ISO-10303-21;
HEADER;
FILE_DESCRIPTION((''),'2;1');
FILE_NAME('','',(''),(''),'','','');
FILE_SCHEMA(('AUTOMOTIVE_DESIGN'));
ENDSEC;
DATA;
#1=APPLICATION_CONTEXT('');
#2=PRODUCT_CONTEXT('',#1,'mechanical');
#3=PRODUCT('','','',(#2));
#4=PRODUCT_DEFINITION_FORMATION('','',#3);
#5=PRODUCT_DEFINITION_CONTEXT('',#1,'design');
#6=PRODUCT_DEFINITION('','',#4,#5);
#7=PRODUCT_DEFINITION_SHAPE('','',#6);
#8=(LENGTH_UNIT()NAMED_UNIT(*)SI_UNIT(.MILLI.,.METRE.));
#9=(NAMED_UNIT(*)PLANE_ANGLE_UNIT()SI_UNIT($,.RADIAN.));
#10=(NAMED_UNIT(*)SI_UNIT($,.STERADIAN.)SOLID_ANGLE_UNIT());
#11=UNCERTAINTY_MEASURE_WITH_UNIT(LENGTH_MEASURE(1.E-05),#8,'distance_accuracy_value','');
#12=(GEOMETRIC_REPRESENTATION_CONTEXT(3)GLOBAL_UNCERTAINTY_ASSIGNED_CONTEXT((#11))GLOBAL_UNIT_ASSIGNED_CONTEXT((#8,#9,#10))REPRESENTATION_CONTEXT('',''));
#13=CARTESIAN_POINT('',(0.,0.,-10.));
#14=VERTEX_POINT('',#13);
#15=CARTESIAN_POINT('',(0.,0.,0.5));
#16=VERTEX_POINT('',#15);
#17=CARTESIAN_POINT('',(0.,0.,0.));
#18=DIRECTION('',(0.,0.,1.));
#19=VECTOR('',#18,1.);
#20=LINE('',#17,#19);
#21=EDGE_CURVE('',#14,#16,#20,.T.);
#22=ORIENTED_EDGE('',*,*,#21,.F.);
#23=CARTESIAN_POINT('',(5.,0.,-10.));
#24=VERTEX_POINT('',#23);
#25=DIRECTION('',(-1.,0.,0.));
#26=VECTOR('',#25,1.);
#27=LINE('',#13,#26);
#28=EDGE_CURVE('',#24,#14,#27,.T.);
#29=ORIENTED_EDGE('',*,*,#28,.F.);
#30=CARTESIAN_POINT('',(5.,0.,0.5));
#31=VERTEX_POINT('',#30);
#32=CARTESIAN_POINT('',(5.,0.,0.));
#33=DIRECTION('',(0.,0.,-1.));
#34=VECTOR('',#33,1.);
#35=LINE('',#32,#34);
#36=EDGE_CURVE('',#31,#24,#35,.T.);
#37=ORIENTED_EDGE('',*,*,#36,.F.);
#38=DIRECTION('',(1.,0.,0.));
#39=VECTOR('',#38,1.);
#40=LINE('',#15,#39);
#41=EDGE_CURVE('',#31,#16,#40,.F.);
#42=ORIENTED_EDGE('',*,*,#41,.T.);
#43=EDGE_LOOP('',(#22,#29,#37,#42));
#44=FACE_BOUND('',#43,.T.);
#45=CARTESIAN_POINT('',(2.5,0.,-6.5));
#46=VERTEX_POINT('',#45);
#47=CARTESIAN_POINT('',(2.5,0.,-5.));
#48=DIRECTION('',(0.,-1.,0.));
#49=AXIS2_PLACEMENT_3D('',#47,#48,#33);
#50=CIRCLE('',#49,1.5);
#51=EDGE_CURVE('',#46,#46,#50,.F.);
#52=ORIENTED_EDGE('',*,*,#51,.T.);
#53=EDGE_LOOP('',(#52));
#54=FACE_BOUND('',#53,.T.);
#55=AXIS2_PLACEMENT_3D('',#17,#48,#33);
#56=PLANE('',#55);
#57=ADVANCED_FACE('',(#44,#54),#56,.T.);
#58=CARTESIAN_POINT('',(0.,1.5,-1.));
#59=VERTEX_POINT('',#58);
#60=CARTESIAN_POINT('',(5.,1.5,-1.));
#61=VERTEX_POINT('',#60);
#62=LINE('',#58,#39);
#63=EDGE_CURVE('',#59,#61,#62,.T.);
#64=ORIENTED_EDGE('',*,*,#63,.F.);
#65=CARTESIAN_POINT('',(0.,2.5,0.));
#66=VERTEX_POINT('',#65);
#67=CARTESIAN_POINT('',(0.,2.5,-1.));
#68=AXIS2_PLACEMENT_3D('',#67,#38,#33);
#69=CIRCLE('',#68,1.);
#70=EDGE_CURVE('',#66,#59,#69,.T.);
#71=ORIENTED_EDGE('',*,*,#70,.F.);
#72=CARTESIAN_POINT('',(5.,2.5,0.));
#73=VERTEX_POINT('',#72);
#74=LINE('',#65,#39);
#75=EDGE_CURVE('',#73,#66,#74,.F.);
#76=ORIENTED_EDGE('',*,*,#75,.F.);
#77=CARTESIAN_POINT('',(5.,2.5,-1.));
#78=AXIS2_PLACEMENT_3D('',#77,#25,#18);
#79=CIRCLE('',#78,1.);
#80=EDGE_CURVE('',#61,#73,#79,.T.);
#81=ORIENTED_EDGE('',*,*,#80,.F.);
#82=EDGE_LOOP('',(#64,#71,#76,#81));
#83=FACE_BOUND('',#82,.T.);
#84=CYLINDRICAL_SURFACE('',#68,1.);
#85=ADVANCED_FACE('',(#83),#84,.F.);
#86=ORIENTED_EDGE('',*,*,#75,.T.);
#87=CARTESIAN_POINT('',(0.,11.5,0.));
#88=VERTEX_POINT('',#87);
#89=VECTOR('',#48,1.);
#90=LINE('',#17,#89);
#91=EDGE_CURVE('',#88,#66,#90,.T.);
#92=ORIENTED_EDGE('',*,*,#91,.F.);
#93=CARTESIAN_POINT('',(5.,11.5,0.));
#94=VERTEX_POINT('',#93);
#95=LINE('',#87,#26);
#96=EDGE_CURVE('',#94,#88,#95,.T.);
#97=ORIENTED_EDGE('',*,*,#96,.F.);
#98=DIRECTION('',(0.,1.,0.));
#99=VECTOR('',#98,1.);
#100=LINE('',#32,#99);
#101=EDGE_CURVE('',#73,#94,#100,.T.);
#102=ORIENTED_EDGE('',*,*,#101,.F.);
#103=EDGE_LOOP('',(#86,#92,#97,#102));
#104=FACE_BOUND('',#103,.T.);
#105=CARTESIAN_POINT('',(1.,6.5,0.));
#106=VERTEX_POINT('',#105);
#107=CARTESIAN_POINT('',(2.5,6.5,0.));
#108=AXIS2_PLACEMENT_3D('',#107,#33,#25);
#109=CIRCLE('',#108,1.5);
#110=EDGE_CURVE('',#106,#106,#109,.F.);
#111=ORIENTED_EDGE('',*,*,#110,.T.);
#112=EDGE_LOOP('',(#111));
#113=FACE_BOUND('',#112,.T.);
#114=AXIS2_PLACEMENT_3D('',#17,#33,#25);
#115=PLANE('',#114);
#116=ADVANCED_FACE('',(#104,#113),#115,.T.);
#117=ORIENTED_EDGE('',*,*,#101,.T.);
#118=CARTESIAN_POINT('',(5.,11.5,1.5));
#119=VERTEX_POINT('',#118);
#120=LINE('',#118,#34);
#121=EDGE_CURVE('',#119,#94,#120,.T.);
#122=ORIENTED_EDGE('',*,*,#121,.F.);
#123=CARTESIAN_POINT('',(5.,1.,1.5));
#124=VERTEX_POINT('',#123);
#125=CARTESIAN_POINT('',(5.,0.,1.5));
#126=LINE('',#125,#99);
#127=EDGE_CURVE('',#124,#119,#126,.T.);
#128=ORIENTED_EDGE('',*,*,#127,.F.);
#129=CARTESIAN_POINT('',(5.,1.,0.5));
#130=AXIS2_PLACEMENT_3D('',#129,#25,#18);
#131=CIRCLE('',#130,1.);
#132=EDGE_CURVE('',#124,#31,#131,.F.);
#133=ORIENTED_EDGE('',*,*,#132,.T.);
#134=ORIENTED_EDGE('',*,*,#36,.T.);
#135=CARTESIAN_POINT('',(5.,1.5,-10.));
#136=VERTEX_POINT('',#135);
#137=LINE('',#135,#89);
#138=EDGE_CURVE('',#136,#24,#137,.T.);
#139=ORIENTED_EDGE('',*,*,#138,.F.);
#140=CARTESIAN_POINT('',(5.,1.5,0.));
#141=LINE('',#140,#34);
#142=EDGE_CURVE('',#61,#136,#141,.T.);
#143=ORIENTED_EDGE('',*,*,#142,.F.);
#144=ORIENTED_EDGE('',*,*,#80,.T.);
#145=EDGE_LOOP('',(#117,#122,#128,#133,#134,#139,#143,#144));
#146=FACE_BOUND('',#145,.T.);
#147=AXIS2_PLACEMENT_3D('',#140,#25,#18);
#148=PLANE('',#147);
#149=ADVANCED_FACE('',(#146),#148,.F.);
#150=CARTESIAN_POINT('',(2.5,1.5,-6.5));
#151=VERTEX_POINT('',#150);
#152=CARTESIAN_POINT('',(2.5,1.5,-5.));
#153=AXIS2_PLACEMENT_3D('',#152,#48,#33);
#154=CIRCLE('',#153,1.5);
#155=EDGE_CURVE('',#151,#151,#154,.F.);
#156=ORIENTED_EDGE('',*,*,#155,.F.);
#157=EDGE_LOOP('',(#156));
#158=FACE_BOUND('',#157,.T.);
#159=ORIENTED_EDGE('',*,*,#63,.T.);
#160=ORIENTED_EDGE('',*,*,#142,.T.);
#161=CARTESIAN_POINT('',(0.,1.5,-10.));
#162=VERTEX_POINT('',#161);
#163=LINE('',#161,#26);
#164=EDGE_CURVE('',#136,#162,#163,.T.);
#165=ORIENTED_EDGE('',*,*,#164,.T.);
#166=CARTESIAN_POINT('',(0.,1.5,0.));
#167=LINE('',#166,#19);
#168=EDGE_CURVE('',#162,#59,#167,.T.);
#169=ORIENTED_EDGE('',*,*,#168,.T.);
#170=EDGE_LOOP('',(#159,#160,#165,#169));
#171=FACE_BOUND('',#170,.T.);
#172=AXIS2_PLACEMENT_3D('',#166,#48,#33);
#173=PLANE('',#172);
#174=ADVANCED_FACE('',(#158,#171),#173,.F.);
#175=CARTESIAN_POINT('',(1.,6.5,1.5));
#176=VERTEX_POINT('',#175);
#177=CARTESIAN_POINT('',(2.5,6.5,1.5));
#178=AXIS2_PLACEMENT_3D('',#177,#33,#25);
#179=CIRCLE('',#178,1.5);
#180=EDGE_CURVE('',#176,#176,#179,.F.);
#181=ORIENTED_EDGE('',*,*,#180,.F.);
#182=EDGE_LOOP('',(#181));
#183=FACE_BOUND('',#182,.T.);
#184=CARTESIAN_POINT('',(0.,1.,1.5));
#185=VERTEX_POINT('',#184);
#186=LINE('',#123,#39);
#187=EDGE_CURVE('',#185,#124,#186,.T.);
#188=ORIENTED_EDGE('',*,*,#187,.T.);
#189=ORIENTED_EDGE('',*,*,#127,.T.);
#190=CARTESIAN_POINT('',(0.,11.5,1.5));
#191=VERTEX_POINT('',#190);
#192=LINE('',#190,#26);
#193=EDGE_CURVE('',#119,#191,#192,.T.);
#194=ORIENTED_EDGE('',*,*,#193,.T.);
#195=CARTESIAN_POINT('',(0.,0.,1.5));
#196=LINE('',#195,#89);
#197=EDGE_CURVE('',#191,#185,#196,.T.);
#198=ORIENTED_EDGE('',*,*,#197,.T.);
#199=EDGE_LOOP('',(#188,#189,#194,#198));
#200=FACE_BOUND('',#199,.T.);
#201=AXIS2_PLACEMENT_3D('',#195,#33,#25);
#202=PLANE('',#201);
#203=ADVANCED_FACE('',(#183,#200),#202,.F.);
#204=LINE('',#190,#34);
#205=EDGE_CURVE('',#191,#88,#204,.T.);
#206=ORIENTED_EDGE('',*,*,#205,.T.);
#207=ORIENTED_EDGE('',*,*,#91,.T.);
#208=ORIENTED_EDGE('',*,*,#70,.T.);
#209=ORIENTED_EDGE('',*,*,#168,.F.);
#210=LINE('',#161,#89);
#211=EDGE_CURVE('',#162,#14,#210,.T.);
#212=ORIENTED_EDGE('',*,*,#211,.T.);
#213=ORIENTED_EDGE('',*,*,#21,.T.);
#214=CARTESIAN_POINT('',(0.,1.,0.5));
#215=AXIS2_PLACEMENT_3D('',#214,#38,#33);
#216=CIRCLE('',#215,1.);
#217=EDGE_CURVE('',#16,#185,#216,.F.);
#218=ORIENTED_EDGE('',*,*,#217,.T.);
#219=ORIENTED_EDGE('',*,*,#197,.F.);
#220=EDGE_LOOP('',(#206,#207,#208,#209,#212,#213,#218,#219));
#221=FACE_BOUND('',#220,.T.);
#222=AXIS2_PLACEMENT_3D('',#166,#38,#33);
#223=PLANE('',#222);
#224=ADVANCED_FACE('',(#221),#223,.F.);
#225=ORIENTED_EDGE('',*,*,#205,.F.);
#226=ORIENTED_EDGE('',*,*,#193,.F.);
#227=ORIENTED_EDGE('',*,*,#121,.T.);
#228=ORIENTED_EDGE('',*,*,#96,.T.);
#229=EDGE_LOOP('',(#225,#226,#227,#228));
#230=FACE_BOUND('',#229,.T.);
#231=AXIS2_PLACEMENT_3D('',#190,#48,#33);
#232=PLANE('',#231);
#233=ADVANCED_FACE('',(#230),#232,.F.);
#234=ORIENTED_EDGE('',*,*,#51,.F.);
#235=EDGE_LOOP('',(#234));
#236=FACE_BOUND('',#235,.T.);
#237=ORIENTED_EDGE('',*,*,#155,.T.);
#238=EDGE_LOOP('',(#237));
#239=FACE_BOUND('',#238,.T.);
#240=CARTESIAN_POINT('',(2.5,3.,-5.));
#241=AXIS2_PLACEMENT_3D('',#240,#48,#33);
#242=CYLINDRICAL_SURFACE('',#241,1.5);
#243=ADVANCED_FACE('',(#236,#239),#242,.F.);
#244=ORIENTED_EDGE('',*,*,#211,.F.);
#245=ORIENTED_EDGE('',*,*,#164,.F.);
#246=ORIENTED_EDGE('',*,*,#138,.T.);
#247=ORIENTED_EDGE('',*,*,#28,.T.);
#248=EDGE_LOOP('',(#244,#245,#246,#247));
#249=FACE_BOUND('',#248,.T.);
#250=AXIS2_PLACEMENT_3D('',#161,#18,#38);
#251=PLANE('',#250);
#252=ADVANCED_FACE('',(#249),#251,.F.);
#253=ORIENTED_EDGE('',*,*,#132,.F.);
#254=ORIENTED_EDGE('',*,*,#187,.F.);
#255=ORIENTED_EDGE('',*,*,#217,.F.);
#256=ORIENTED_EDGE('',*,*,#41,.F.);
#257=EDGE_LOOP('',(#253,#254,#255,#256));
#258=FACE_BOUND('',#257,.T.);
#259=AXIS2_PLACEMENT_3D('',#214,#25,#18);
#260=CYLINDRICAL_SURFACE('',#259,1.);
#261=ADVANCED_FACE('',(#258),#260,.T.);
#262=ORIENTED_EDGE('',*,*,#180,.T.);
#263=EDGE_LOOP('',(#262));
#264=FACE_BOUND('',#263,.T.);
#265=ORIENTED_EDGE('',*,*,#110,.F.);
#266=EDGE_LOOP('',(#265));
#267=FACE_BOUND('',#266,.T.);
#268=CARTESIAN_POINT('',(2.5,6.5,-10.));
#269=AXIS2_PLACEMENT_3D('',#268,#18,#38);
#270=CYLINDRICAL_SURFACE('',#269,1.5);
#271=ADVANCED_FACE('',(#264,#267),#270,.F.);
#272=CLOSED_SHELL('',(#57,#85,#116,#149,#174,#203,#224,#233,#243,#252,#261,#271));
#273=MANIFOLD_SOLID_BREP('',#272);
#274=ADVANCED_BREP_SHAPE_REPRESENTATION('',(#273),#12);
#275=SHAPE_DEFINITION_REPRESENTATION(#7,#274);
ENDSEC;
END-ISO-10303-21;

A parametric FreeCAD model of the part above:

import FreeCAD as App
import Part
import Sketcher


def edges_at(feature, points):
    """Names of the edges that pass closest to the given points."""
    edges = feature.Shape.Edges
    near = lambda p: min(range(len(edges)), key=lambda i: edges[i].distToShape(Part.Vertex(*p))[0])
    return sorted({f"Edge{near(p) + 1}" for p in points})

doc = App.newDocument("Part")
body = doc.addObject("PartDesign::Body", "Body")

# Sketch on XZ plane
sketch1 = body.newObject("Sketcher::SketchObject", "Sketch")
sketch1.AttachmentSupport = (doc.getObject("XZ_Plane"), [""])
sketch1.MapMode = "FlatFace"
sketch1.addGeometry([
    Part.LineSegment(App.Vector(0, -10, 0), App.Vector(0, 0, 0)),
    Part.LineSegment(App.Vector(0, 0, 0), App.Vector(5, 0, 0)),
    Part.LineSegment(App.Vector(5, 0, 0), App.Vector(5, -10, 0)),
    Part.LineSegment(App.Vector(5, -10, 0), App.Vector(0, -10, 0)),
], False)
sketch1.addConstraint([
    Sketcher.Constraint("Coincident", 0, 2, 1, 1),
    Sketcher.Constraint("Coincident", 1, 2, 2, 1),
    Sketcher.Constraint("Coincident", 2, 2, 3, 1),
    Sketcher.Constraint("Coincident", 3, 2, 0, 1),
    Sketcher.Constraint("Vertical", 0),
    Sketcher.Constraint("Horizontal", 1),
    Sketcher.Constraint("Vertical", 2),
    Sketcher.Constraint("Horizontal", 3),
    Sketcher.Constraint("Coincident", 0, 2, -1, 1),
    Sketcher.Constraint("DistanceX", 1, 1, 1, 2, 5.0),
    Sketcher.Constraint("DistanceY", 0, 1, 0, 2, 10.0),
])
pad1 = body.newObject("PartDesign::Pad", "Pad")
pad1.Profile = sketch1
pad1.Length = 1.5
pad1.Reversed = True

# Sketch on XY plane
sketch2 = body.newObject("Sketcher::SketchObject", "Sketch001")
sketch2.AttachmentSupport = (doc.getObject("XY_Plane"), [""])
sketch2.MapMode = "FlatFace"
sketch2.addGeometry([
    Part.LineSegment(App.Vector(0, 12, 0), App.Vector(0, 0, 0)),
    Part.LineSegment(App.Vector(0, 0, 0), App.Vector(5, 0, 0)),
    Part.LineSegment(App.Vector(5, 0, 0), App.Vector(5, 12, 0)),
    Part.LineSegment(App.Vector(5, 12, 0), App.Vector(0, 12, 0)),
], False)
sketch2.addConstraint([
    Sketcher.Constraint("Coincident", 0, 2, 1, 1),
    Sketcher.Constraint("Coincident", 1, 2, 2, 1),
    Sketcher.Constraint("Coincident", 2, 2, 3, 1),
    Sketcher.Constraint("Coincident", 3, 2, 0, 1),
    Sketcher.Constraint("Vertical", 0),
    Sketcher.Constraint("Horizontal", 1),
    Sketcher.Constraint("Vertical", 2),
    Sketcher.Constraint("Horizontal", 3),
    Sketcher.Constraint("Coincident", 0, 2, -1, 1),
    Sketcher.Constraint("DistanceX", 1, 1, 1, 2, 5.0),
    Sketcher.Constraint("DistanceY", 0, 2, 0, 1, 11.5),
])
pad2 = body.newObject("PartDesign::Pad", "Pad001")
pad2.Profile = sketch2
pad2.Length = 1.5

# Sketch on XZ plane
sketch3 = body.newObject("Sketcher::SketchObject", "Sketch002")
sketch3.AttachmentSupport = (doc.getObject("XZ_Plane"), [""])
sketch3.MapMode = "FlatFace"
sketch3.AttachmentOffset = App.Placement(App.Vector(0, 0, -1.5), App.Rotation())
sketch3.addGeometry(Part.Circle(App.Vector(2.5, -5, 0), App.Vector(0, 0, 1), 1.5), False)
sketch3.addConstraint([
    Sketcher.Constraint("Diameter", 0, 3.0),
    Sketcher.Constraint("DistanceY", 0, 3, -1, 1, 5.0),
    Sketcher.Constraint("DistanceX", -1, 1, 0, 3, 2.5),
])
pocket1 = body.newObject("PartDesign::Pocket", "Pocket")
pocket1.Profile = sketch3
pocket1.Type = "ThroughAll"
pocket1.Midplane = True

# Sketch on XY plane
sketch4 = body.newObject("Sketcher::SketchObject", "Sketch003")
sketch4.AttachmentSupport = (doc.getObject("XY_Plane"), [""])
sketch4.MapMode = "FlatFace"
sketch4.addGeometry(Part.Circle(App.Vector(2.5, 6.5, 0), App.Vector(0, 0, 1), 1.5), False)
sketch4.addConstraint([
    Sketcher.Constraint("Diameter", 0, 3.0),
    Sketcher.Constraint("DistanceX", -1, 1, 0, 3, 2.5),
    Sketcher.Constraint("DistanceY", -1, 1, 0, 3, 6.5),
])
pocket2 = body.newObject("PartDesign::Pocket", "Pocket001")
pocket2.Profile = sketch4
pocket2.Type = "ThroughAll"
pocket2.Midplane = True
doc.recompute()

fillet = body.newObject("PartDesign::Fillet", "Fillet")
fillet.Base = (pocket2, edges_at(pocket2, [(2.5, 1.5, 0)]))
fillet.Radius = 1
doc.recompute()

fillet2 = body.newObject("PartDesign::Fillet", "Fillet001")
fillet2.Base = (fillet, edges_at(fillet, [(2.5, 0, 1.5)]))
fillet2.Radius = 1

doc.recompute()
